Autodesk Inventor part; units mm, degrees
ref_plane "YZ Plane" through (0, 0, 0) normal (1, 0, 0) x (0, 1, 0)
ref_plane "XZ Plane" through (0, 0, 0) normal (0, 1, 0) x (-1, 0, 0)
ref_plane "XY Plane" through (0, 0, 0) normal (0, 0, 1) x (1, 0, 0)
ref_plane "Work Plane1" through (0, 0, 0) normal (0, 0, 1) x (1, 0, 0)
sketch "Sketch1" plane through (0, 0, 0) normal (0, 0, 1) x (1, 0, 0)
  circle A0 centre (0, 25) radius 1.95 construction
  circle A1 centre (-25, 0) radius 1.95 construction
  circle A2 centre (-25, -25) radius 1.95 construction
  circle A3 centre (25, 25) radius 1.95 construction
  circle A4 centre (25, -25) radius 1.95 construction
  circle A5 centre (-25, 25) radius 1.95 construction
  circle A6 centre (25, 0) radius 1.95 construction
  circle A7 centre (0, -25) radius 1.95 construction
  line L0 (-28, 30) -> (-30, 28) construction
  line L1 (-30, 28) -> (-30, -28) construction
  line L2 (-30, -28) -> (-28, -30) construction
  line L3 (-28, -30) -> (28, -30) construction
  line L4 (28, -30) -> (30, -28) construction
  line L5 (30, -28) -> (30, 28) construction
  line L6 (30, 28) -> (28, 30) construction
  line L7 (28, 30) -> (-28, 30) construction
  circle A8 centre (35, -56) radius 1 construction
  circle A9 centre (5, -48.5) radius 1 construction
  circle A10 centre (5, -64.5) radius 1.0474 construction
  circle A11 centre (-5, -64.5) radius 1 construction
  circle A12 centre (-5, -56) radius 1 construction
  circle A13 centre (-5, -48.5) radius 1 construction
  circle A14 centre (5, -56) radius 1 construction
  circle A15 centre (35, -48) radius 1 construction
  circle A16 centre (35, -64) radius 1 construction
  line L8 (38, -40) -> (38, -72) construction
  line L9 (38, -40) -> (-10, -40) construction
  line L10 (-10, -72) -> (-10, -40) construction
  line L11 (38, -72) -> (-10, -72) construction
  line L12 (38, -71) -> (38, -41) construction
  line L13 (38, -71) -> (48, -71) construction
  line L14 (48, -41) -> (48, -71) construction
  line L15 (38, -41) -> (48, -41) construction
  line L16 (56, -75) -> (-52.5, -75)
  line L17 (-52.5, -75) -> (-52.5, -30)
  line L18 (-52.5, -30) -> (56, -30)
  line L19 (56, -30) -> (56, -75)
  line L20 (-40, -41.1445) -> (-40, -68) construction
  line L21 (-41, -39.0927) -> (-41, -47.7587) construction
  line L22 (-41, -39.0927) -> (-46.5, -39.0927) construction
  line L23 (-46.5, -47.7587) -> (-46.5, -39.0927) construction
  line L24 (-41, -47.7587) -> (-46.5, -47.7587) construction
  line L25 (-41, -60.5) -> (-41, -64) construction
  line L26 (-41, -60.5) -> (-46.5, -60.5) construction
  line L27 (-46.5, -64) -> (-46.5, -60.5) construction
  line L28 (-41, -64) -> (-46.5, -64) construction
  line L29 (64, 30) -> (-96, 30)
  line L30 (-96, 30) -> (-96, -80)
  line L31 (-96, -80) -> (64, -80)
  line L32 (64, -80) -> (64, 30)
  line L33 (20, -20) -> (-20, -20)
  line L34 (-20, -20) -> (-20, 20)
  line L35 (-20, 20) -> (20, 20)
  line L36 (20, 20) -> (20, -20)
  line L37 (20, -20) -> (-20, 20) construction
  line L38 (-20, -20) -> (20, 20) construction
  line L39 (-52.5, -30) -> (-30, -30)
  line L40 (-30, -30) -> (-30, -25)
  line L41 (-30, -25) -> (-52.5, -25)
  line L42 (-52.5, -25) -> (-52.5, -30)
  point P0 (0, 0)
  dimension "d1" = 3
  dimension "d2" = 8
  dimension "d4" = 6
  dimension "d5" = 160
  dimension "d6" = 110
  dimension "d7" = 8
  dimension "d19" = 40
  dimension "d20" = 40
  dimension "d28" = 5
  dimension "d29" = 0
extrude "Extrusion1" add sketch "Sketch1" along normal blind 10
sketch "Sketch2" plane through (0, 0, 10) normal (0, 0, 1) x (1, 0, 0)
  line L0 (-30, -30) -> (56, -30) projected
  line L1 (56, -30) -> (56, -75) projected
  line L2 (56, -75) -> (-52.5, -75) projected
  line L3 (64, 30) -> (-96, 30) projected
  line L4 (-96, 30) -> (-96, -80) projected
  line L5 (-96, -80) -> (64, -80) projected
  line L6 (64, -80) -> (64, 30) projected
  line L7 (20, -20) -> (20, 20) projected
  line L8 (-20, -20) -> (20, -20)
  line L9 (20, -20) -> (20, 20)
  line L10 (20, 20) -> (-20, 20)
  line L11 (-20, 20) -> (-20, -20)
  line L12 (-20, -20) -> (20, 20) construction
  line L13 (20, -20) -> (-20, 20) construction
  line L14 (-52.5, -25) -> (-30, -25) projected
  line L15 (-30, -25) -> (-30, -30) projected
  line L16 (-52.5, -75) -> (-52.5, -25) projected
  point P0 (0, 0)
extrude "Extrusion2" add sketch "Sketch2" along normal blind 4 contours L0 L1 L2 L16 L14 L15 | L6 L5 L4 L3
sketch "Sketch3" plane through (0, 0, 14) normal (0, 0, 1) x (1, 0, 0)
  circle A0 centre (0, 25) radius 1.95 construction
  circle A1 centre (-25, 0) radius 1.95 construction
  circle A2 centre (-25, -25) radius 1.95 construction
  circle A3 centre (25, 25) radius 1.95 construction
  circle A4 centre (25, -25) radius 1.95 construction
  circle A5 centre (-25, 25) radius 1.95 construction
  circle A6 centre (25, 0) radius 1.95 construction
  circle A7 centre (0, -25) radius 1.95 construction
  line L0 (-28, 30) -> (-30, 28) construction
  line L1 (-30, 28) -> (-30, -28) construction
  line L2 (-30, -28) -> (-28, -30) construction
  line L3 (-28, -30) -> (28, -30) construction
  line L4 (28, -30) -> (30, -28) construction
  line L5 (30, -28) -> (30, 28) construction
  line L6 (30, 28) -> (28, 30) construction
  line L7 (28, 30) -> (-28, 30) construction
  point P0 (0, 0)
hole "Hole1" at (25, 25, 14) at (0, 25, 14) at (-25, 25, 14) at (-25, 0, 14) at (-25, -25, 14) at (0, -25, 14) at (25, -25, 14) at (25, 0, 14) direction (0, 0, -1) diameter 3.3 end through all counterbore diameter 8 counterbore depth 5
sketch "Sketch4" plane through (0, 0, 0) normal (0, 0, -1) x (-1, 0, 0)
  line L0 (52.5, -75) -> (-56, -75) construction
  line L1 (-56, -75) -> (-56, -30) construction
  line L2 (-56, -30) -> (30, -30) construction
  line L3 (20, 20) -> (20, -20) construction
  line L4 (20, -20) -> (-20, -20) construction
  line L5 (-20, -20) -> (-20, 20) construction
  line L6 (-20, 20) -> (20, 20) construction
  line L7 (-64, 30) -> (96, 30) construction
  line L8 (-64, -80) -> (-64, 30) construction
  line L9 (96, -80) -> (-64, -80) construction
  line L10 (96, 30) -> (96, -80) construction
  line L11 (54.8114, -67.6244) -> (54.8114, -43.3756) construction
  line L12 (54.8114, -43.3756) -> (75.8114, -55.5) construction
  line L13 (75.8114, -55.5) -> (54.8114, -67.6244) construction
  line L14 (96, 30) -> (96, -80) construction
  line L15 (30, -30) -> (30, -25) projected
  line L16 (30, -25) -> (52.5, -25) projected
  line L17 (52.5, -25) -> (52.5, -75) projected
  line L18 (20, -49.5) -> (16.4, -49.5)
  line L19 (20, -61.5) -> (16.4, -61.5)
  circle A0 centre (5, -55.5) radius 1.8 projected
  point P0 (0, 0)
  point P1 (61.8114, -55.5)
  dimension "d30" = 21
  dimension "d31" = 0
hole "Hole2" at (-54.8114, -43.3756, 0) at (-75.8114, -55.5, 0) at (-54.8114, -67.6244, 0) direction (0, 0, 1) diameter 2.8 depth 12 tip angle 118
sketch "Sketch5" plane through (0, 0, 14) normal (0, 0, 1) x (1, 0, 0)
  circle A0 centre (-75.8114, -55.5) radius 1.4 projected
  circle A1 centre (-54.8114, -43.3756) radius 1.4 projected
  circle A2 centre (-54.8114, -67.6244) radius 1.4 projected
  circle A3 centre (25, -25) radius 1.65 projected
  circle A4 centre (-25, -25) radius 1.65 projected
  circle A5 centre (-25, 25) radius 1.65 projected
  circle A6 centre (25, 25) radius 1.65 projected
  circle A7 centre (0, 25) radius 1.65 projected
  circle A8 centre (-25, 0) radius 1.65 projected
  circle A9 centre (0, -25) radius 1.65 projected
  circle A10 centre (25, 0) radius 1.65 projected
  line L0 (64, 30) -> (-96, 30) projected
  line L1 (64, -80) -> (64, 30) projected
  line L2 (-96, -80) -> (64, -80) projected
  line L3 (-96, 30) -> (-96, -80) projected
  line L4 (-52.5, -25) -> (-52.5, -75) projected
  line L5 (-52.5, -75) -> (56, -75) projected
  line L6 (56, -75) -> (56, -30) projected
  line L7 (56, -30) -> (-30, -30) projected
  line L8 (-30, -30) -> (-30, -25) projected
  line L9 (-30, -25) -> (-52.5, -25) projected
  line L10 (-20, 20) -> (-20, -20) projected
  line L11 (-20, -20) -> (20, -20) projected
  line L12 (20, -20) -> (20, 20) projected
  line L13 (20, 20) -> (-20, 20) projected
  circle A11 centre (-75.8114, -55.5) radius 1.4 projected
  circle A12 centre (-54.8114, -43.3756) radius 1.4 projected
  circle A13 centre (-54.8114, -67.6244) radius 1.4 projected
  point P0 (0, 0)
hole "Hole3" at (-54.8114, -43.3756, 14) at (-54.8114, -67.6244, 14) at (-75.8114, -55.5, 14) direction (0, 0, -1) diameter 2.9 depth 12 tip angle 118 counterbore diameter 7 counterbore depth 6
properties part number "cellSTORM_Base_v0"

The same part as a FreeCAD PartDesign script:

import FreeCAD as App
import Part
import Sketcher

V = App.Vector

doc = App.newDocument("Part")
body = doc.addObject("PartDesign::Body", "Body")

# Sketch on XY plane
sketch1 = body.newObject("Sketcher::SketchObject", "Sketch")
sketch1.AttachmentSupport = (doc.getObject("XY_Plane"), [""])
sketch1.MapMode = "FlatFace"
sketch1.addGeometry([
    Part.LineSegment(V(64, -80, 0), V(64, 30, 0)),  # 0
    Part.LineSegment(V(64, 30, 0), V(-96, 30, 0)),  # 1
    Part.LineSegment(V(-96, 30, 0), V(-96, -80, 0)),  # 2
    Part.LineSegment(V(-96, -80, 0), V(64, -80, 0)),  # 3
    Part.LineSegment(V(56, -30, 0), V(56, -75, 0)),  # 4
    Part.LineSegment(V(56, -75, 0), V(-52, -75, 0)),  # 5
    Part.LineSegment(V(-52, -75, 0), V(-52, -25, 0)),  # 6
    Part.LineSegment(V(-52, -25, 0), V(-30, -25, 0)),  # 7
    Part.LineSegment(V(-30, -25, 0), V(-30, -30, 0)),  # 8
    Part.LineSegment(V(-30, -30, 0), V(56, -30, 0)),  # 9
    Part.LineSegment(V(20, 20, 0), V(20, -20, 0)),  # 10
    Part.LineSegment(V(20, -20, 0), V(-20, -20, 0)),  # 11
    Part.LineSegment(V(-20, -20, 0), V(-20, 20, 0)),  # 12
    Part.LineSegment(V(-20, 20, 0), V(20, 20, 0)),  # 13
], False)
sketch1.addConstraint([
    Sketcher.Constraint("Coincident", 0, 2, 1, 1),
    Sketcher.Constraint("Coincident", 1, 2, 2, 1),
    Sketcher.Constraint("Coincident", 2, 2, 3, 1),
    Sketcher.Constraint("Coincident", 3, 2, 0, 1),
    Sketcher.Constraint("Coincident", 4, 2, 5, 1),
    Sketcher.Constraint("Coincident", 5, 2, 6, 1),
    Sketcher.Constraint("Coincident", 6, 2, 7, 1),
    Sketcher.Constraint("Coincident", 7, 2, 8, 1),
    Sketcher.Constraint("Coincident", 8, 2, 9, 1),
    Sketcher.Constraint("Coincident", 9, 2, 4, 1),
    Sketcher.Constraint("Coincident", 10, 2, 11, 1),
    Sketcher.Constraint("Coincident", 11, 2, 12, 1),
    Sketcher.Constraint("Coincident", 12, 2, 13, 1),
    Sketcher.Constraint("Coincident", 13, 2, 10, 1),
    Sketcher.Constraint("Vertical", 0),
    Sketcher.Constraint("Horizontal", 1),
    Sketcher.Constraint("Vertical", 2),
    Sketcher.Constraint("Horizontal", 3),
    Sketcher.Constraint("Vertical", 4),
    Sketcher.Constraint("Horizontal", 5),
    Sketcher.Constraint("Vertical", 6),
    Sketcher.Constraint("Horizontal", 7),
    Sketcher.Constraint("Vertical", 8),
    Sketcher.Constraint("Horizontal", 9),
    Sketcher.Constraint("Vertical", 10),
    Sketcher.Constraint("Horizontal", 11),
    Sketcher.Constraint("Vertical", 12),
    Sketcher.Constraint("Horizontal", 13),
    Sketcher.Constraint("Symmetric", 10, 2, 12, 2, -1, 1),
    Sketcher.Constraint("Equal", 13, 10),
    Sketcher.Constraint("DistanceX", 1, 2, 1, 1, 160.0),
    Sketcher.Constraint("DistanceX", 11, 2, 11, 1, 40.0),
    Sketcher.Constraint("DistanceY", 0, 1, 0, 2, 110.0),
    Sketcher.Constraint("DistanceY", 8, 2, 8, 1, 5.0),
    Sketcher.Constraint("DistanceX", 4, 2, 3, 2, 8.0),
    Sketcher.Constraint("DistanceY", 3, 2, 4, 2, 5.0),
    Sketcher.Constraint("DistanceY", 7, 2, 10, 2, 5.0),
    Sketcher.Constraint("DistanceX", 9, 1, 9, 2, 86.0),
    Sketcher.Constraint("DistanceY", 4, 2, 4, 1, 45.0),
    Sketcher.Constraint("DistanceX", 5, 2, 5, 1, 108.5),
    Sketcher.Constraint("DistanceX", -1, 1, 0, 2, 64.0),
])
pad1 = body.newObject("PartDesign::Pad", "Pad")
pad1.Profile = sketch1
pad1.Length = 10

# Sketch on XY plane
sketch2 = body.newObject("Sketcher::SketchObject", "Sketch001")
sketch2.AttachmentSupport = (doc.getObject("XY_Plane"), [""])
sketch2.MapMode = "FlatFace"
sketch2.AttachmentOffset = App.Placement(V(0, 0, 10), App.Rotation())
sketch2.addGeometry([
    Part.LineSegment(V(64, -80, 0), V(64, 30, 0)),  # 0
    Part.LineSegment(V(64, 30, 0), V(-96, 30, 0)),  # 1
    Part.LineSegment(V(-96, 30, 0), V(-96, -80, 0)),  # 2
    Part.LineSegment(V(-96, -80, 0), V(64, -80, 0)),  # 3
    Part.LineSegment(V(-20, -20, 0), V(-20, 20, 0)),  # 4
    Part.LineSegment(V(-20, 20, 0), V(20, 20, 0)),  # 5
    Part.LineSegment(V(20, 20, 0), V(20, -20, 0)),  # 6
    Part.LineSegment(V(20, -20, 0), V(-20, -20, 0)),  # 7
], False)
sketch2.addConstraint([
    Sketcher.Constraint("Coincident", 0, 2, 1, 1),
    Sketcher.Constraint("Coincident", 1, 2, 2, 1),
    Sketcher.Constraint("Coincident", 2, 2, 3, 1),
    Sketcher.Constraint("Coincident", 3, 2, 0, 1),
    Sketcher.Constraint("Coincident", 4, 2, 5, 1),
    Sketcher.Constraint("Coincident", 5, 2, 6, 1),
    Sketcher.Constraint("Coincident", 6, 2, 7, 1),
    Sketcher.Constraint("Coincident", 7, 2, 4, 1),
    Sketcher.Constraint("Vertical", 0),
    Sketcher.Constraint("Horizontal", 1),
    Sketcher.Constraint("Vertical", 2),
    Sketcher.Constraint("Horizontal", 3),
    Sketcher.Constraint("Vertical", 4),
    Sketcher.Constraint("Horizontal", 5),
    Sketcher.Constraint("Vertical", 6),
    Sketcher.Constraint("Horizontal", 7),
    Sketcher.Constraint("Symmetric", 4, 2, 6, 2, -1, 1),
    Sketcher.Constraint("Equal", 7, 4),
    Sketcher.Constraint("DistanceX", 1, 2, 1, 1, 160.0),
    Sketcher.Constraint("DistanceX", 5, 1, 5, 2, 40.0),
    Sketcher.Constraint("DistanceY", 0, 1, 0, 2, 110.0),
    Sketcher.Constraint("DistanceX", -1, 1, 0, 2, 64.0),
    Sketcher.Constraint("DistanceY", -1, 1, 0, 2, 30.0),
])
pad2 = body.newObject("PartDesign::Pad", "Pad001")
pad2.Profile = sketch2
pad2.Length = 4

# Sketch on XY plane
sketch3 = body.newObject("Sketcher::SketchObject", "Sketch002")
sketch3.AttachmentSupport = (doc.getObject("XY_Plane"), [""])
sketch3.MapMode = "FlatFace"
sketch3.AttachmentOffset = App.Placement(V(0, 0, 14), App.Rotation())
sketch3.addGeometry([
    Part.Circle(V(25, 25, 0), V(0, 0, 1), 1.6),  # 0
    Part.Circle(V(0, 25, 0), V(0, 0, 1), 1.6),  # 1
    Part.Circle(V(-25, 25, 0), V(0, 0, 1), 1.6),  # 2
    Part.Circle(V(-25, 0, 0), V(0, 0, 1), 1.6),  # 3
    Part.Circle(V(-25, -25, 0), V(0, 0, 1), 1.6),  # 4
    Part.Circle(V(0, -25, 0), V(0, 0, 1), 1.6),  # 5
    Part.Circle(V(25, -25, 0), V(0, 0, 1), 1.6),  # 6
    Part.Circle(V(25, 0, 0), V(0, 0, 1), 1.6),  # 7
], False)
sketch3.addConstraint([
    Sketcher.Constraint("Equal", 0, 1),
    Sketcher.Constraint("Equal", 1, 2),
    Sketcher.Constraint("Equal", 2, 3),
    Sketcher.Constraint("Equal", 3, 4),
    Sketcher.Constraint("Equal", 4, 5),
    Sketcher.Constraint("Equal", 5, 6),
    Sketcher.Constraint("Equal", 6, 7),
    Sketcher.Constraint("Symmetric", 0, 3, 4, 3, -1, 1),
    Sketcher.Constraint("Symmetric", 1, 3, 5, 3, -1, 1),
    Sketcher.Constraint("Symmetric", 2, 3, 6, 3, -1, 1),
    Sketcher.Constraint("Symmetric", 3, 3, 7, 3, -1, 1),
    Sketcher.Constraint("Symmetric", 0, 3, 2, 3, -2),
    Sketcher.Constraint("PointOnObject", 1, 3, -2),
    Sketcher.Constraint("PointOnObject", 3, 3, -1),
    Sketcher.Constraint("Horizontal", 0, 3, 1, 3),
    Sketcher.Constraint("Vertical", 2, 3, 3, 3),
    Sketcher.Constraint("Diameter", 0, 3.3),
    Sketcher.Constraint("DistanceX", -1, 1, 0, 3, 25.0),
    Sketcher.Constraint("DistanceY", -1, 1, 0, 3, 25.0),
])
doc.recompute()
hole = body.newObject("PartDesign::Hole", "Hole")
hole.Profile = sketch3
hole.ThreadType = "None"
hole.Diameter = 3.3
hole.DepthType = "ThroughAll"
hole.HoleCutType = "Counterbore"
hole.HoleCutDiameter = 8
hole.HoleCutDepth = 5

# Sketch on XY plane
sketch4 = body.newObject("Sketcher::SketchObject", "Sketch003")
sketch4.AttachmentSupport = (doc.getObject("XY_Plane"), [""])
sketch4.MapMode = "FlatFace"
sketch4.addGeometry([
    Part.Circle(V(-54.8, -43.4, 0), V(0, 0, 1), 1.4),
    Part.Circle(V(-75.8, -55.5, 0), V(0, 0, 1), 1.4),
    Part.Circle(V(-54.8, -67.6, 0), V(0, 0, 1), 1.4),
], False)
sketch4.addConstraint([
    Sketcher.Constraint("Equal", 0, 1),
    Sketcher.Constraint("Equal", 1, 2),
    Sketcher.Constraint("Vertical", 0, 3, 2, 3),
    Sketcher.Constraint("Diameter", 0, 2.8),
    Sketcher.Constraint("DistanceX", 1, 3, 0, 3, 21.0),
    Sketcher.Constraint("DistanceY", 1, 3, -1, 1, 55.5),
    Sketcher.Constraint("DistanceX", 0, 3, -1, 1, 54.8114),
    Sketcher.Constraint("DistanceY", 0, 3, -1, 1, 43.3756),
    Sketcher.Constraint("DistanceY", 2, 3, -1, 1, 67.6244),
])
doc.recompute()
hole2 = body.newObject("PartDesign::Hole", "Hole001")
hole2.Profile = sketch4
hole2.ThreadType = "None"
hole2.Diameter = 2.8
hole2.DepthType = "Dimension"
hole2.Depth = 12
hole2.DrillPoint = "Angled"
hole2.DrillPointAngle = 118
hole2.Reversed = True

# Sketch on XY plane
sketch5 = body.newObject("Sketcher::SketchObject", "Sketch004")
sketch5.AttachmentSupport = (doc.getObject("XY_Plane"), [""])
sketch5.MapMode = "FlatFace"
sketch5.AttachmentOffset = App.Placement(V(0, 0, 14), App.Rotation())
sketch5.addGeometry([
    Part.Circle(V(-54.8, -43.4, 0), V(0, 0, 1), 1.4),
    Part.Circle(V(-54.8, -67.6, 0), V(0, 0, 1), 1.4),
    Part.Circle(V(-75.8, -55.5, 0), V(0, 0, 1), 1.4),
], False)
sketch5.addConstraint([
    Sketcher.Constraint("Equal", 0, 1),
    Sketcher.Constraint("Equal", 1, 2),
    Sketcher.Constraint("Vertical", 0, 3, 1, 3),
    Sketcher.Constraint("Diameter", 0, 2.9),
    Sketcher.Constraint("DistanceX", 2, 3, 1, 3, 21.0),
    Sketcher.Constraint("DistanceY", 2, 3, -1, 1, 55.5),
    Sketcher.Constraint("DistanceX", 0, 3, -1, 1, 54.8114),
    Sketcher.Constraint("DistanceY", 0, 3, -1, 1, 43.3756),
    Sketcher.Constraint("DistanceY", 1, 3, -1, 1, 67.6244),
])
doc.recompute()
hole3 = body.newObject("PartDesign::Hole", "Hole002")
hole3.Profile = sketch5
hole3.ThreadType = "None"
hole3.Diameter = 2.9
hole3.DepthType = "Dimension"
hole3.Depth = 12
hole3.DrillPoint = "Angled"
hole3.DrillPointAngle = 118
hole3.HoleCutType = "Counterbore"
hole3.HoleCutDiameter = 7
hole3.HoleCutDepth = 6

doc.recompute()
